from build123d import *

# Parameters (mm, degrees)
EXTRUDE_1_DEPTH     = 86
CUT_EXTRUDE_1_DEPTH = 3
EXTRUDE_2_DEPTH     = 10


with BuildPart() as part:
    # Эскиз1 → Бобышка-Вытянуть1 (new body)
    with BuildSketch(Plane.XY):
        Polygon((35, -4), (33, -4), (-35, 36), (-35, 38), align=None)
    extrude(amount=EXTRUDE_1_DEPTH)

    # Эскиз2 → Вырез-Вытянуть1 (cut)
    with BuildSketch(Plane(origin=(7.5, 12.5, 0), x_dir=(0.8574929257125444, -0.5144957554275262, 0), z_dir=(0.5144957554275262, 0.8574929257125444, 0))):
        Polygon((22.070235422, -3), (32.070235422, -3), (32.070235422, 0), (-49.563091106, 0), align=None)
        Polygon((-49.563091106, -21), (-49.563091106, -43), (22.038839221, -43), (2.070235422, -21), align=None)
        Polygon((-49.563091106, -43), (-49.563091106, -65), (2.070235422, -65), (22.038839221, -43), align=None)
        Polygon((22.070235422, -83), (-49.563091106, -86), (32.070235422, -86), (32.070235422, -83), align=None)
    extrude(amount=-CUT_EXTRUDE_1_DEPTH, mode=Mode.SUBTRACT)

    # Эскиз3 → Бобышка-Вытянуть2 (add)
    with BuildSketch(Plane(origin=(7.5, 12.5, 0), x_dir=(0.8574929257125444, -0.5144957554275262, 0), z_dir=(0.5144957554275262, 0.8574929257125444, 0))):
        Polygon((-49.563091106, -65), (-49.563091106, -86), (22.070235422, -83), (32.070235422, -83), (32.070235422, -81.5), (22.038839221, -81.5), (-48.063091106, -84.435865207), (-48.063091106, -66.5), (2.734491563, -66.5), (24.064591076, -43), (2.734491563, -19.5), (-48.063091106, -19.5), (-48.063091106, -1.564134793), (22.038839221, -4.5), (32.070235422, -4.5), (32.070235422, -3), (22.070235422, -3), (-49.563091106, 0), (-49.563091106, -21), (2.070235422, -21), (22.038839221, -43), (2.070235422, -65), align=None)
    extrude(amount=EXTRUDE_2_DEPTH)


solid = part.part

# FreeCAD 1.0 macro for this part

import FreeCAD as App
import Part
import Sketcher
from FreeCAD import Vector


def add_polygon(sketch, points):
    """Adds a closed chain of lines whose ends are joined by coincident constraints."""
    first, n = sketch.GeometryCount, len(points)
    for a, b in zip(points, points[1:] + points[:1]):
        sketch.addGeometry(Part.LineSegment(App.Vector(*a, 0), App.Vector(*b, 0)), False)
    for i in range(n):
        sketch.addConstraint(Sketcher.Constraint("Coincident", first + i, 2, first + (i + 1) % n, 1))

doc = App.newDocument("Part")
body = doc.addObject("PartDesign::Body", "Body")

# Sketch on XY plane
sketch1 = doc.addObject("Sketcher::SketchObject", "Sketch")
body.addObject(sketch1)
sketch1.AttachmentSupport = (doc.XY_Plane, [""])
sketch1.MapMode = "FlatFace"
add_polygon(sketch1, [(33, -4), (35, -4), (-35, 38), (-35, 36)])  # lines 0-3
sketch1.addConstraint(Sketcher.Constraint("Horizontal", 0))
sketch1.addConstraint(Sketcher.Constraint("Vertical", 2))
sketch1.addConstraint(Sketcher.Constraint("Equal", 0, 2))
sketch1.addConstraint(Sketcher.Constraint("DistanceX", 0, 1, 0, 2, 2.0))
sketch1.addConstraint(Sketcher.Constraint("DistanceX", -1, 1, 0, 2, 35.0))
sketch1.addConstraint(Sketcher.Constraint("DistanceY", 0, 2, -1, 1, 4.0))
sketch1.addConstraint(Sketcher.Constraint("DistanceX", 1, 2, -1, 1, 35.0))
sketch1.addConstraint(Sketcher.Constraint("DistanceY", -1, 1, 1, 2, 38.0))
pad1 = doc.addObject("PartDesign::Pad", "Pad")
body.addObject(pad1)
pad1.Profile = sketch1
pad1.Length = 86

# Sketch on an angled plane
sketch2 = doc.addObject("Sketcher::SketchObject", "Sketch001")
body.addObject(sketch2)
sketch2.Placement = App.Placement(Vector(7.5, 12.5, 0), App.Rotation(Vector(0.857492926, -0.514495755, 0), Vector(0, 0, -1), Vector(0.514495755, 0.857492926, 0), "ZXY"))
add_polygon(sketch2, [(22.1, -3), (32.1, -3), (32.1, 0), (-49.6, 0)])  # lines 0-3
add_polygon(sketch2, [(-49.6, -21), (-49.6, -65), (2.1, -65), (22, -43), (2.1, -21)])  # lines 4-8
add_polygon(sketch2, [(22.1, -83), (-49.6, -86), (32.1, -86), (32.1, -83)])  # lines 9-12
sketch2.addConstraint(Sketcher.Constraint("Horizontal", 0))
sketch2.addConstraint(Sketcher.Constraint("Vertical", 1))
sketch2.addConstraint(Sketcher.Constraint("Horizontal", 2))
sketch2.addConstraint(Sketcher.Constraint("Vertical", 4))
sketch2.addConstraint(Sketcher.Constraint("Horizontal", 5))
sketch2.addConstraint(Sketcher.Constraint("Horizontal", 8))
sketch2.addConstraint(Sketcher.Constraint("Horizontal", 10))
sketch2.addConstraint(Sketcher.Constraint("Vertical", 11))
sketch2.addConstraint(Sketcher.Constraint("Horizontal", 12))
sketch2.addConstraint(Sketcher.Constraint("PointOnObject", 1, 2, -1))
sketch2.addConstraint(Sketcher.Constraint("Vertical", 2, 2, 4, 2))
sketch2.addConstraint(Sketcher.Constraint("Vertical", 5, 2, 7, 2))
sketch2.addConstraint(Sketcher.Constraint("Vertical", 8, 2, 9, 2))
sketch2.addConstraint(Sketcher.Constraint("Vertical", 1, 2, 10, 2))
sketch2.addConstraint(Sketcher.Constraint("Vertical", 3, 2, 12, 2))
sketch2.addConstraint(Sketcher.Constraint("Equal", 1, 11))
sketch2.addConstraint(Sketcher.Constraint("Equal", 6, 7))
sketch2.addConstraint(Sketcher.Constraint("DistanceX", 0, 1, 0, 2, 10.0))
sketch2.addConstraint(Sketcher.Constraint("DistanceY", 1, 1, 1, 2, 3.0))
sketch2.addConstraint(Sketcher.Constraint("DistanceY", 4, 2, 4, 1, 44.0))
sketch2.addConstraint(Sketcher.Constraint("DistanceY", 4, 2, -1, 1, 65.0))
sketch2.addConstraint(Sketcher.Constraint("DistanceY", 9, 2, -1, 1, 86.0))
sketch2.addConstraint(Sketcher.Constraint("DistanceX", 5, 2, 3, 2, 20.0))
sketch2.addConstraint(Sketcher.Constraint("Distance", 3, 71.696119))
sketch2.addConstraint(Sketcher.Constraint("DistanceX", 2, 2, -1, 1, 49.563091))
sketch2.addConstraint(Sketcher.Constraint("DistanceX", -1, 1, 6, 2, 22.038839))
pocket1 = doc.addObject("PartDesign::Pocket", "Pocket")
body.addObject(pocket1)
pocket1.Profile = sketch2
pocket1.Length = 3

# Sketch on an angled plane
sketch3 = doc.addObject("Sketcher::SketchObject", "Sketch002")
body.addObject(sketch3)
sketch3.Placement = App.Placement(Vector(7.5, 12.5, 0), App.Rotation(Vector(0.857492926, -0.514495755, 0), Vector(0, 0, -1), Vector(0.514495755, 0.857492926, 0), "ZXY"))
add_polygon(sketch3, [(-49.6, -65), (-49.6, -86), (22.1, -83), (32.1, -83), (32.1, -81.5), (22, -81.5), (-48.1, -84.4), (-48.1, -66.5), (2.7, -66.5), (24.1, -43), (2.7, -19.5), (-48.1, -19.5), (-48.1, -1.6), (22, -4.5), (32.1, -4.5), (32.1, -3), (22.1, -3), (-49.6, 0), (-49.6, -21), (2.1, -21), (22, -43), (2.1, -65)])  # lines 0-21
sketch3.addConstraint(Sketcher.Constraint("Vertical", 0))
sketch3.addConstraint(Sketcher.Constraint("Horizontal", 2))
sketch3.addConstraint(Sketcher.Constraint("Vertical", 3))
sketch3.addConstraint(Sketcher.Constraint("Horizontal", 4))
sketch3.addConstraint(Sketcher.Constraint("Vertical", 6))
sketch3.addConstraint(Sketcher.Constraint("Horizontal", 7))
sketch3.addConstraint(Sketcher.Constraint("Horizontal", 10))
sketch3.addConstraint(Sketcher.Constraint("Vertical", 11))
sketch3.addConstraint(Sketcher.Constraint("Horizontal", 13))
sketch3.addConstraint(Sketcher.Constraint("Vertical", 14))
sketch3.addConstraint(Sketcher.Constraint("Horizontal", 15))
sketch3.addConstraint(Sketcher.Constraint("Vertical", 17))
sketch3.addConstraint(Sketcher.Constraint("Horizontal", 18))
sketch3.addConstraint(Sketcher.Constraint("Horizontal", 21))
sketch3.addConstraint(Sketcher.Constraint("PointOnObject", 16, 2, -1))
sketch3.addConstraint(Sketcher.Constraint("Parallel", 1, 5))
sketch3.addConstraint(Sketcher.Constraint("Parallel", 12, 16))
sketch3.addConstraint(Sketcher.Constraint("Parallel", 9, 19))
sketch3.addConstraint(Sketcher.Constraint("Parallel", 8, 20))
sketch3.addConstraint(Sketcher.Constraint("Horizontal", 8, 2, 19, 2))
sketch3.addConstraint(Sketcher.Constraint("Vertical", 7, 2, 9, 2))
sketch3.addConstraint(Sketcher.Constraint("Vertical", 6, 2, 10, 2))
sketch3.addConstraint(Sketcher.Constraint("Vertical", 4, 2, 12, 2))
sketch3.addConstraint(Sketcher.Constraint("Vertical", 3, 2, 13, 2))
sketch3.addConstraint(Sketcher.Constraint("Vertical", 1, 2, 15, 2))
sketch3.addConstraint(Sketcher.Constraint("Vertical", 0, 2, 16, 2))
sketch3.addConstraint(Sketcher.Constraint("Vertical", 12, 2, 19, 2))
sketch3.addConstraint(Sketcher.Constraint("Vertical", 18, 2, 20, 2))
sketch3.addConstraint(Sketcher.Constraint("Equal", 6, 11))
sketch3.addConstraint(Sketcher.Constraint("Equal", 3, 14))
sketch3.addConstraint(Sketcher.Constraint("Equal", 0, 17))
sketch3.addConstraint(Sketcher.Constraint("Equal", 8, 9))
sketch3.addConstraint(Sketcher.Constraint("DistanceX", 2, 1, 2, 2, 10.0))
sketch3.addConstraint(Sketcher.Constraint("DistanceY", 0, 2, 0, 1, 21.0))
sketch3.addConstraint(Sketcher.Constraint("DistanceY", 3, 1, 3, 2, 1.5))
sketch3.addConstraint(Sketcher.Constraint("DistanceY", 0, 2, -1, 1, 86.0))
sketch3.addConstraint(Sketcher.Constraint("DistanceY", 1, 2, -1, 1, 83.0))
sketch3.addConstraint(Sketcher.Constraint("DistanceY", 4, 2, 6, 2, 15.0))
sketch3.addConstraint(Sketcher.Constraint("DistanceX", 18, 2, 15, 2, 20.0))
sketch3.addConstraint(Sketcher.Constraint("DistanceX", 0, 2, 5, 2, 1.5))
sketch3.addConstraint(Sketcher.Constraint("DistanceX", 7, 2, 8, 2, 21.3301))
sketch3.addConstraint(Sketcher.Constraint("Distance", 1, 71.696119))
sketch3.addConstraint(Sketcher.Constraint("DistanceX", 7, 1, 7, 2, 50.797583))
sketch3.addConstraint(Sketcher.Constraint("DistanceX", 0, 2, -1, 1, 49.563091))
pad2 = doc.addObject("PartDesign::Pad", "Pad001")
body.addObject(pad2)
pad2.Profile = sketch3
pad2.Length = 10

doc.recompute()
